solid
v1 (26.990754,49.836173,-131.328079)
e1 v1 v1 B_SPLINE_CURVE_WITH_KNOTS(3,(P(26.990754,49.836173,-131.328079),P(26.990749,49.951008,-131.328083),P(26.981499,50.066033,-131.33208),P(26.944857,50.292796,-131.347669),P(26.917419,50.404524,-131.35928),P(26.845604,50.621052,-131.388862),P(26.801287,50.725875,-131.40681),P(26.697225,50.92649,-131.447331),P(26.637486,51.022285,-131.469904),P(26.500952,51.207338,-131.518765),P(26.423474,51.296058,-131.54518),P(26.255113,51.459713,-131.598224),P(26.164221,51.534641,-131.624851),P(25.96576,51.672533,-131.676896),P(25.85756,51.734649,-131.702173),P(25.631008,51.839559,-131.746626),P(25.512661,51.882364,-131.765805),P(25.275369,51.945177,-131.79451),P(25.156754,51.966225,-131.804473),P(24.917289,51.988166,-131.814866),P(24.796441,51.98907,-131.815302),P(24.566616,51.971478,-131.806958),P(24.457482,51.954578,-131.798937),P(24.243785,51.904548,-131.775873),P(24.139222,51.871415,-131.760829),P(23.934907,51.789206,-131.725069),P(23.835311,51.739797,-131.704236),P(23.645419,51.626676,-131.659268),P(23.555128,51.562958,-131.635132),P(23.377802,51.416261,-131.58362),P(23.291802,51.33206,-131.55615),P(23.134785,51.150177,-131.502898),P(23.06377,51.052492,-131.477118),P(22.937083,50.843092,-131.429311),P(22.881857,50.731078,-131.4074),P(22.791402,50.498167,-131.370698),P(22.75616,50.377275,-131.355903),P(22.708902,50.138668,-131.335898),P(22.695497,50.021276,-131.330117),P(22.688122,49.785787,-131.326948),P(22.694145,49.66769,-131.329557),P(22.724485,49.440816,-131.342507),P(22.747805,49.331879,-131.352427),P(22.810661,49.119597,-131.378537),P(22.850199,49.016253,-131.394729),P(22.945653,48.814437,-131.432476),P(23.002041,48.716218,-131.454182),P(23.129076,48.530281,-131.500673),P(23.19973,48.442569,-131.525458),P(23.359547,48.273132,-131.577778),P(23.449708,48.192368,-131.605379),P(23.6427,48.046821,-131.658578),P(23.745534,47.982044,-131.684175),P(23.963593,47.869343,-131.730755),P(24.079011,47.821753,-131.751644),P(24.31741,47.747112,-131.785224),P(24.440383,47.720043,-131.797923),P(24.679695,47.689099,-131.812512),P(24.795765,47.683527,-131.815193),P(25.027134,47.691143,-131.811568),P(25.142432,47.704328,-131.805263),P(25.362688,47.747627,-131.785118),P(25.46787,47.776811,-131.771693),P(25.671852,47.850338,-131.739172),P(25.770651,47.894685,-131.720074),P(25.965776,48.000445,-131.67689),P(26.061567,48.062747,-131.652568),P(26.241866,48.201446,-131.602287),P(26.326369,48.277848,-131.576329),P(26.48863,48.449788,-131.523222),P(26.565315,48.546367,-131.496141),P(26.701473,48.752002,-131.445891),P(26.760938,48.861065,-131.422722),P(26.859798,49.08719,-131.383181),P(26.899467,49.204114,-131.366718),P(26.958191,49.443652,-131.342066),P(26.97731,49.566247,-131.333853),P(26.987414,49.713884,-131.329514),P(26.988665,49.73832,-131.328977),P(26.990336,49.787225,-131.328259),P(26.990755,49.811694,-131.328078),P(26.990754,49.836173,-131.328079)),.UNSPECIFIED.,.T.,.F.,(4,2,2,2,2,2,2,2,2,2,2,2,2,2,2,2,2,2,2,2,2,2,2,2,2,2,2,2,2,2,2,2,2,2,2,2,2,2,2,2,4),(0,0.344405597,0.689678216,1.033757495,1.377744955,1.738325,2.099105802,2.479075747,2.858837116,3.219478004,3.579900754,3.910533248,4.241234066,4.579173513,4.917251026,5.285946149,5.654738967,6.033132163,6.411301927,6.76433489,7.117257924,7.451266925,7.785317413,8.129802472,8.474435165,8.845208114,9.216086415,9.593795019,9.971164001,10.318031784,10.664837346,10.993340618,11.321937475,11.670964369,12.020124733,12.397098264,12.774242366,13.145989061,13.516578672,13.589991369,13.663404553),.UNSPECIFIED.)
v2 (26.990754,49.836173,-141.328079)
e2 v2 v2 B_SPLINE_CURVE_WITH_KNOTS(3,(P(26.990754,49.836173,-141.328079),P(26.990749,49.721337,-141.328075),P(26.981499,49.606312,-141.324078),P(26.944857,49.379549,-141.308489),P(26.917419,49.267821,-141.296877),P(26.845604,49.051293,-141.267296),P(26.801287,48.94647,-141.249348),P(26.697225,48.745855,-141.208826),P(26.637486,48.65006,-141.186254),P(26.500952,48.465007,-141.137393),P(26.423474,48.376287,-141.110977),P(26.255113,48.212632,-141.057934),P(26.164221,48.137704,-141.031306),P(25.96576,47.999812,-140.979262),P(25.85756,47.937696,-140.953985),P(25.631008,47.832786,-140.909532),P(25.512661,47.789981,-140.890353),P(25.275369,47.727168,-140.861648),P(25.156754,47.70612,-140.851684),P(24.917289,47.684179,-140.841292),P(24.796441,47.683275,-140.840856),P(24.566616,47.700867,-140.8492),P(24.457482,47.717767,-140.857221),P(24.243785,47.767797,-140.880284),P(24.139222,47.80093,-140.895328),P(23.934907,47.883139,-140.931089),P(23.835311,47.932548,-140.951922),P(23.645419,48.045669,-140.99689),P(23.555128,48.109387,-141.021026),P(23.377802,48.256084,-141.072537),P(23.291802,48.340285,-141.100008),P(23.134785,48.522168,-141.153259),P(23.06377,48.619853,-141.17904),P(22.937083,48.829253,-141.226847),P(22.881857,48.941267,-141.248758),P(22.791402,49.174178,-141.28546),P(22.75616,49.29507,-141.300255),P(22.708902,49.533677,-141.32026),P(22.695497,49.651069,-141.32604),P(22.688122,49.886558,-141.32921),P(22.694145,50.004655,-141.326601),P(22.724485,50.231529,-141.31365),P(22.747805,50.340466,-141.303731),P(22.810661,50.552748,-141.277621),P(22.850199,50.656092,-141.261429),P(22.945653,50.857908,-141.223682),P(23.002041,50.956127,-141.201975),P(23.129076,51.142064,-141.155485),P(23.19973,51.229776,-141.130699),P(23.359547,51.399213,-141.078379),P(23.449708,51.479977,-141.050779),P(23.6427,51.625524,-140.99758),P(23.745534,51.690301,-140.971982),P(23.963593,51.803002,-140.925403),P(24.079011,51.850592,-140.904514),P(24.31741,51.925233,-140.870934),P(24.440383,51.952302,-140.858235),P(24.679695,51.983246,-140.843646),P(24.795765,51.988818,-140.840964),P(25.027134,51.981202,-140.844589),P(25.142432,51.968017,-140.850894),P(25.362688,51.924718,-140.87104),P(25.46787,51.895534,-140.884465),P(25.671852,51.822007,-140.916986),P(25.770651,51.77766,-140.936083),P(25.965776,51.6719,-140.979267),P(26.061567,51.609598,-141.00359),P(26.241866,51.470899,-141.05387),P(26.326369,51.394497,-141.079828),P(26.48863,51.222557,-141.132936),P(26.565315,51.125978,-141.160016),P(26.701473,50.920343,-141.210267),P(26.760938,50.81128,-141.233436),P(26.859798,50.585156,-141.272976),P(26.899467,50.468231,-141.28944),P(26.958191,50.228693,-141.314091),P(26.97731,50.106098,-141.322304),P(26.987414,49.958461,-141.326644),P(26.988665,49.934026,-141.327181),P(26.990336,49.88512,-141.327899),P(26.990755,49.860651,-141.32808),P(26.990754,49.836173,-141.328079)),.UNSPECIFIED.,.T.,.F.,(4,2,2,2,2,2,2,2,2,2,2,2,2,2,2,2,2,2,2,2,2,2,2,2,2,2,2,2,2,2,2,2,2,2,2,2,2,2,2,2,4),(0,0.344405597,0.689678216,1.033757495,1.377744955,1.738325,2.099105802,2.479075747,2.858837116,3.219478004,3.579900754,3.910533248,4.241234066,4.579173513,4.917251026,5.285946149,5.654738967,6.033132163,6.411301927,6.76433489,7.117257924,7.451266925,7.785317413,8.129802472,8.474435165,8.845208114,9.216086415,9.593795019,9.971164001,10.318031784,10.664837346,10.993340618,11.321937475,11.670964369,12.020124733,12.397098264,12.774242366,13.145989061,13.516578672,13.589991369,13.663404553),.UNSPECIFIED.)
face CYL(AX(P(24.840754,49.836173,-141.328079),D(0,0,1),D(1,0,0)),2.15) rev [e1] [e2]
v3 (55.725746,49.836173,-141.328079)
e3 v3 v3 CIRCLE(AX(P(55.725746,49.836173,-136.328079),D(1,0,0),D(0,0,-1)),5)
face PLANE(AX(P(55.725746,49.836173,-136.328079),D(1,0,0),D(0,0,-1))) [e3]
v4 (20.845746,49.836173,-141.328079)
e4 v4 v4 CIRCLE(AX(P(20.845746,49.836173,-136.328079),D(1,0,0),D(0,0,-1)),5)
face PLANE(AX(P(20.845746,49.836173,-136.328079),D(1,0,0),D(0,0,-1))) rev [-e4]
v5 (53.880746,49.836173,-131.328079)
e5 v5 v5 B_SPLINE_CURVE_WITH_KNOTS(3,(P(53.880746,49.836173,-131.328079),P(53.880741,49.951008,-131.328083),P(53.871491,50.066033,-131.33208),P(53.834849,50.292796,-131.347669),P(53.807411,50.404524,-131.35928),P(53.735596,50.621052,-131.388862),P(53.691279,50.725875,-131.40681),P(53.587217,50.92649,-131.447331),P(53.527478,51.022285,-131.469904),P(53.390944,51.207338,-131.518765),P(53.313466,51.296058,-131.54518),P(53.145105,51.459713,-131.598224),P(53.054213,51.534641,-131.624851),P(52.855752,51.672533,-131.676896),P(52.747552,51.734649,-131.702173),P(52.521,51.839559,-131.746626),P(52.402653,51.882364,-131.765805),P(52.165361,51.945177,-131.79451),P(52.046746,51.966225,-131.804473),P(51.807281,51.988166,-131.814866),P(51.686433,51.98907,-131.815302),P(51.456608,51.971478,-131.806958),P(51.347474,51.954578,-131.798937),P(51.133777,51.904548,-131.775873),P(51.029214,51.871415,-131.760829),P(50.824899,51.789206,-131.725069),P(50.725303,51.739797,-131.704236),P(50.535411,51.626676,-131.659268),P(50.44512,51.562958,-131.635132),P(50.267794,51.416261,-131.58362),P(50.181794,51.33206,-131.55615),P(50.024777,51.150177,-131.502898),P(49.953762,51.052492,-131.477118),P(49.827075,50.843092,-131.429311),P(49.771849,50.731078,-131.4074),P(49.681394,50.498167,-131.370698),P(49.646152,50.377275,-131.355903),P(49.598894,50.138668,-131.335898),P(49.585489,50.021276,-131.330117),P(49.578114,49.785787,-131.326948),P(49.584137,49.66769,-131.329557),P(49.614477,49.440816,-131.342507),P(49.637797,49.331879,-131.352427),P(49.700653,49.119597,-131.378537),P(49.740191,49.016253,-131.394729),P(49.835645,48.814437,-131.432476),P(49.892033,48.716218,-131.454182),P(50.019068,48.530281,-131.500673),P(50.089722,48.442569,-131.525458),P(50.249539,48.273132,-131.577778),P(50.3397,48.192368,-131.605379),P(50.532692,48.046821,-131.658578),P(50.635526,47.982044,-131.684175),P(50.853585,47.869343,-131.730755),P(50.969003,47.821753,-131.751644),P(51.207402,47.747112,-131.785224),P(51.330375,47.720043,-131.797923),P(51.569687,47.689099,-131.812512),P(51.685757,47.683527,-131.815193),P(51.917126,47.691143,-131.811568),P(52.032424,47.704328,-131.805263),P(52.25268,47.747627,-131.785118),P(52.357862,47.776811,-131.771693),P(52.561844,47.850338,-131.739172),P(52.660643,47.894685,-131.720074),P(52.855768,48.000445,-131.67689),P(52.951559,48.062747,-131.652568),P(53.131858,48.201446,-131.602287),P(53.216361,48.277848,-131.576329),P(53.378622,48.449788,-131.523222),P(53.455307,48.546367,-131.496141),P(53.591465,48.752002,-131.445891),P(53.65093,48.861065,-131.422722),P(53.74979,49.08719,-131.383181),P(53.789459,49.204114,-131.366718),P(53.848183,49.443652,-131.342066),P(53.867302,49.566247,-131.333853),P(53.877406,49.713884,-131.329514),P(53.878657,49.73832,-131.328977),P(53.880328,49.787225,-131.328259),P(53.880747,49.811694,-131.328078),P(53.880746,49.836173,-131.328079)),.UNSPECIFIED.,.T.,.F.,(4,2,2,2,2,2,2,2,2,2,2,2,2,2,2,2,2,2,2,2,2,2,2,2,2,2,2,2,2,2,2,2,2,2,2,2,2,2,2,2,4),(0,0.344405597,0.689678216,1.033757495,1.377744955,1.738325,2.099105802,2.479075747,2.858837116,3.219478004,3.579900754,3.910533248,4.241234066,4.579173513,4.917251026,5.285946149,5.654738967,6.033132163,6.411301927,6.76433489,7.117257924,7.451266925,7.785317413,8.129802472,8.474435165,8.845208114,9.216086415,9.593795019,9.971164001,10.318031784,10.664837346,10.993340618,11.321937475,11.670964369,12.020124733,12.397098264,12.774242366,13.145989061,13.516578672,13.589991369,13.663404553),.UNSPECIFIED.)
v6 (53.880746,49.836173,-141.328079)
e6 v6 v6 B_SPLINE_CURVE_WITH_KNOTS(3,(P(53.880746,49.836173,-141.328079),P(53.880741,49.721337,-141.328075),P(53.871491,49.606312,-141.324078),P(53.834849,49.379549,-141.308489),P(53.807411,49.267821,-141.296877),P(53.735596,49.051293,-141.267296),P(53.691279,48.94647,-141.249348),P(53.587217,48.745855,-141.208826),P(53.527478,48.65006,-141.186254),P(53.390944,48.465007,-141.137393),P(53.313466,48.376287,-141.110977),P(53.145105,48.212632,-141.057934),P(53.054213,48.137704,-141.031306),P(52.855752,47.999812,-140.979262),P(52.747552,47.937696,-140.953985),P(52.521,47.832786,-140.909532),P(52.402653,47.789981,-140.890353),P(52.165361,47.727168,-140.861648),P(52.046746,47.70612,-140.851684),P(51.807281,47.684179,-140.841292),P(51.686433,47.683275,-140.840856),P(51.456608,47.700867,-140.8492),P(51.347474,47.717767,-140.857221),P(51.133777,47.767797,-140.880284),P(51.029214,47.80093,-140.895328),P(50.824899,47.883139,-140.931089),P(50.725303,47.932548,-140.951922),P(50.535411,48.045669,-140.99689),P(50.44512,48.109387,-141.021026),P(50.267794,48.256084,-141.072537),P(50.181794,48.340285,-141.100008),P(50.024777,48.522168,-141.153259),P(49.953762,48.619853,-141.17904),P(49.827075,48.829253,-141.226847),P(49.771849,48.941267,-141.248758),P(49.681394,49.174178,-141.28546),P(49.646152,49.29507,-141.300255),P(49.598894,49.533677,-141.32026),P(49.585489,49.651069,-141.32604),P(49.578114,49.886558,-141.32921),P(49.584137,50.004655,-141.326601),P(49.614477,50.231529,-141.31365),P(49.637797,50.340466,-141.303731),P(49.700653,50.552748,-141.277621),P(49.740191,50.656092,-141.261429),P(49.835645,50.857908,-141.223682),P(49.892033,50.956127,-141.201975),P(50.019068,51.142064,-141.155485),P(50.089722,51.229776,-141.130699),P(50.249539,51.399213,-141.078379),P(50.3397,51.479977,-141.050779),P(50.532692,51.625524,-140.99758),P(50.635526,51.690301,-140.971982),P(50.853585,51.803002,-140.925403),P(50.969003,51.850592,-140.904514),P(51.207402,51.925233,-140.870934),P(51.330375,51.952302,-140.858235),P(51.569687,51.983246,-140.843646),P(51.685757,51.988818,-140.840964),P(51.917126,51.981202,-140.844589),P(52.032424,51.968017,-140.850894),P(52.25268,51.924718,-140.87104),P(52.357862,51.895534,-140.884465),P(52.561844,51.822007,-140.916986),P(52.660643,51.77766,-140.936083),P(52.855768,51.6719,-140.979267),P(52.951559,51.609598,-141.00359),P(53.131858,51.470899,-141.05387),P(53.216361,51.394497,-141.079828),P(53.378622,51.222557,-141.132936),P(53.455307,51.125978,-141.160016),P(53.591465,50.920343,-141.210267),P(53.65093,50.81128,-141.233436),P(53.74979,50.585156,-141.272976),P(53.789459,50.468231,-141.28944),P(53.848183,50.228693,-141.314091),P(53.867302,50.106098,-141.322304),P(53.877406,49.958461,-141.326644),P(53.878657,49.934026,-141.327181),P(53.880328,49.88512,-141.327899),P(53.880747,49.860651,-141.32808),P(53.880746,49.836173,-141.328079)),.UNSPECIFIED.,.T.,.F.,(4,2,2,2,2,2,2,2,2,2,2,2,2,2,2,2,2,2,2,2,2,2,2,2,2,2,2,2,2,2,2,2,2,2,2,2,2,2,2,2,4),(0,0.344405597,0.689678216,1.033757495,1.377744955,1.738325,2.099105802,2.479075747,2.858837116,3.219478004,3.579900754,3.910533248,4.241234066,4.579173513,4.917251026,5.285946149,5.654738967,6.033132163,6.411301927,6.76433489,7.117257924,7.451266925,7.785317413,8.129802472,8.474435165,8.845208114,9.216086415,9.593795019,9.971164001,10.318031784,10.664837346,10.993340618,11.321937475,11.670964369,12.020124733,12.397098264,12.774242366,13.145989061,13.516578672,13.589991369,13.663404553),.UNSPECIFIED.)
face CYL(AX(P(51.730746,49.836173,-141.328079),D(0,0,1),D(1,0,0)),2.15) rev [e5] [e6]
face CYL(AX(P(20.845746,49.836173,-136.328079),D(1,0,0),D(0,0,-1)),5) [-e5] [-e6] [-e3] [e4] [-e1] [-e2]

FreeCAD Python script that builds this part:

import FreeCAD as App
import Part
import Sketcher

V = App.Vector
Q = App.Units.Quantity

doc = App.newDocument("Part")
params = doc.addObject("Spreadsheet::Sheet", "Params")
for row, (alias, value) in enumerate([
    ("sketch1_diameter", "10 mm"),
    ("pad1_length", "23.71 mm"),
    ("pad1_length2", "11.17 mm"),
    ("sketch2_diameter", "4.3 mm"),
], start=1):
    params.set(f"A{row}", alias)
    params.set(f"B{row}", "=" + value)
    params.setAlias(f"B{row}", alias)

body = doc.addObject("PartDesign::Body", "Body")

# Sketch on YZ plane
sketch1 = body.newObject("Sketcher::SketchObject", "Sketch")
sketch1.AttachmentSupport = (doc.getObject("YZ_Plane"), [""])
sketch1.MapMode = "FlatFace"
sketch1.AttachmentOffset = App.Placement(V(0, 0, 32.015746), App.Rotation())
sketch1.addGeometry(Part.Circle(V(50, -136, 0), V(0, 0, 1), 5), False)
sketch1.addConstraint([
    Sketcher.Constraint("Diameter", 0, Q("10 mm")),
    Sketcher.Constraint("DistanceY", 0, 3, -1, 1, Q("136.328079 mm")),
    Sketcher.Constraint("DistanceX", -1, 1, 0, 3, Q("49.836173 mm")),
])
sketch1.setExpression("Constraints[0]", "Params.sketch1_diameter")
pad1 = body.newObject("PartDesign::Pad", "Pad")
pad1.Profile = sketch1
pad1.Type = "TwoLengths"
pad1.setExpression("Length", "Params.pad1_length")
pad1.setExpression("Length2", "Params.pad1_length2")

# Sketch on XY plane
sketch2 = body.newObject("Sketcher::SketchObject", "Sketch001")
sketch2.AttachmentSupport = (doc.getObject("XY_Plane"), [""])
sketch2.MapMode = "FlatFace"
sketch2.AttachmentOffset = App.Placement(V(0, 0, -131.328079), App.Rotation())
sketch2.addGeometry([
    Part.Circle(V(51.7, 49.8, 0), V(0, 0, 1), 2.1),
    Part.Circle(V(24.8, 49.8, 0), V(0, 0, 1), 2.1),
], False)
sketch2.addConstraint([
    Sketcher.Constraint("Equal", 0, 1),
    Sketcher.Constraint("Horizontal", 0, 3, 1, 3),
    Sketcher.Constraint("Diameter", 0, Q("4.3 mm")),
    Sketcher.Constraint("DistanceX", 1, 3, 0, 3, Q("26.889992 mm")),
    Sketcher.Constraint("DistanceX", -1, 1, 0, 3, Q("51.730746 mm")),
    Sketcher.Constraint("DistanceY", -1, 1, 0, 3, Q("49.836173 mm")),
])
sketch2.setExpression("Constraints[2]", "Params.sketch2_diameter")
pocket1 = body.newObject("PartDesign::Pocket", "Pocket")
pocket1.Profile = sketch2
pocket1.Type = "ThroughAll"

doc.recompute()
